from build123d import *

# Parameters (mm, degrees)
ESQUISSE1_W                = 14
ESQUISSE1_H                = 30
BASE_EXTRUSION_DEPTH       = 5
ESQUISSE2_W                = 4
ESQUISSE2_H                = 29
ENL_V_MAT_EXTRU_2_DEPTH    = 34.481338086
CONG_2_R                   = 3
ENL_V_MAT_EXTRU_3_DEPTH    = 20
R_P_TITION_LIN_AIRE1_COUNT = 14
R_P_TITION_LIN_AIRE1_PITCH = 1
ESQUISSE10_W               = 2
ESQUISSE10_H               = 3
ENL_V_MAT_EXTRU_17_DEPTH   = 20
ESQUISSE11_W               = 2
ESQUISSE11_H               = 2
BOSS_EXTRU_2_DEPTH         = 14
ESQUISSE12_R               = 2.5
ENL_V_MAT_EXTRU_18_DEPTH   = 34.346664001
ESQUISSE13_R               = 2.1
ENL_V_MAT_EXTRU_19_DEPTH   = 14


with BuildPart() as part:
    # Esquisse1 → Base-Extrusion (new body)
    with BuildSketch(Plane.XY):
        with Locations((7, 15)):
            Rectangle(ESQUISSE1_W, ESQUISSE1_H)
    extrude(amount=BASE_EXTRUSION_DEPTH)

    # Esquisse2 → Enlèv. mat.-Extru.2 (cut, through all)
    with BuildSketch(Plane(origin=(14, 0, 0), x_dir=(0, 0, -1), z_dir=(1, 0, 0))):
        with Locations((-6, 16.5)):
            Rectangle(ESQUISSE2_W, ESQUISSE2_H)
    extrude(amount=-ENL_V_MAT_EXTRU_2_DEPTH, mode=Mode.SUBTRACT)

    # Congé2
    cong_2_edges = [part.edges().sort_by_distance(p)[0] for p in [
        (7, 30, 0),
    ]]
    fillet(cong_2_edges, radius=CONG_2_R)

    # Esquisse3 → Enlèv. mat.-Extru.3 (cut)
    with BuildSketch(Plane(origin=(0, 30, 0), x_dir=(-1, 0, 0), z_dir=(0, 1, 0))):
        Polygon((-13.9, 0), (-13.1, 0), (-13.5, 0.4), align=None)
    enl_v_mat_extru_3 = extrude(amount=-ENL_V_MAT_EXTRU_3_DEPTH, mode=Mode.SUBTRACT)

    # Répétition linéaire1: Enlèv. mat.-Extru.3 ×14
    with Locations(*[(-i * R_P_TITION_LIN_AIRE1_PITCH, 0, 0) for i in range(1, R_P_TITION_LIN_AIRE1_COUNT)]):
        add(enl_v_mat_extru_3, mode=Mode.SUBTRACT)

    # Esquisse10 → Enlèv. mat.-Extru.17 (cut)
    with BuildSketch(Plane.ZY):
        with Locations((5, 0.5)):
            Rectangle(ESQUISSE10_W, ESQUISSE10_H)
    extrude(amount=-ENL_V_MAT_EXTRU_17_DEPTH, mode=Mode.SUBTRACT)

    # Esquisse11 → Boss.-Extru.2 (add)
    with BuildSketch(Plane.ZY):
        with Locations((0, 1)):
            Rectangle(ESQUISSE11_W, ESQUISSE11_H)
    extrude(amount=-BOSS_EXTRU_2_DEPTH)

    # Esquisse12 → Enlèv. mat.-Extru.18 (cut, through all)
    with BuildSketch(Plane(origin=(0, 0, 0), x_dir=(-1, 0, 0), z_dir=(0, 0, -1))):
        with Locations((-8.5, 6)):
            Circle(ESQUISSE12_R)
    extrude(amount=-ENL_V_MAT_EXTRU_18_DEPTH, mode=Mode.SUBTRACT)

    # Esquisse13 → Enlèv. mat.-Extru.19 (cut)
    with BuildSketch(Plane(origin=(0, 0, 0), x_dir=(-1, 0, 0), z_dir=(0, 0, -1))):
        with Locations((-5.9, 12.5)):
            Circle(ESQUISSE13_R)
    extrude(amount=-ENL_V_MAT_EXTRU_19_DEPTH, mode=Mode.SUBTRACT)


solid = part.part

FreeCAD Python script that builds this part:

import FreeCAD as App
import Part
import Sketcher


def edges_at(feature, points):
    """Names of the edges that pass closest to the given points."""
    edges = feature.Shape.Edges
    near = lambda p: min(range(len(edges)), key=lambda i: edges[i].distToShape(Part.Vertex(*p))[0])
    return sorted({f"Edge{near(p) + 1}" for p in points})


def add_polygon(sketch, points):
    """Adds a closed chain of lines whose ends are joined by coincident constraints."""
    first, n = sketch.GeometryCount, len(points)
    for a, b in zip(points, points[1:] + points[:1]):
        sketch.addGeometry(Part.LineSegment(App.Vector(*a, 0), App.Vector(*b, 0)), False)
    for i in range(n):
        sketch.addConstraint(Sketcher.Constraint("Coincident", first + i, 2, first + (i + 1) % n, 1))

doc = App.newDocument("Part")
body = doc.addObject("PartDesign::Body", "Body")

# Sketch on XY plane
sketch1 = body.newObject("Sketcher::SketchObject", "Sketch")
sketch1.AttachmentSupport = (doc.getObject("XY_Plane"), [""])
sketch1.MapMode = "FlatFace"
add_polygon(sketch1, [(0, 30), (0, 0), (14, 0), (14, 30)])  # lines 0-3
sketch1.addConstraint(Sketcher.Constraint("Vertical", 0))
sketch1.addConstraint(Sketcher.Constraint("Horizontal", 1))
sketch1.addConstraint(Sketcher.Constraint("Vertical", 2))
sketch1.addConstraint(Sketcher.Constraint("Horizontal", 3))
sketch1.addConstraint(Sketcher.Constraint("Coincident", 0, 2, -1, 1))
sketch1.addConstraint(Sketcher.Constraint("DistanceX", 1, 1, 1, 2, 14.0))
sketch1.addConstraint(Sketcher.Constraint("DistanceY", 0, 2, 0, 1, 30.0))
pad1 = body.newObject("PartDesign::Pad", "Pad")
pad1.Profile = sketch1
pad1.Length = 5

# Sketch on YZ plane
sketch2 = body.newObject("Sketcher::SketchObject", "Sketch001")
sketch2.AttachmentSupport = (doc.getObject("YZ_Plane"), [""])
sketch2.MapMode = "FlatFace"
sketch2.AttachmentOffset = App.Placement(App.Vector(0, 0, 14), App.Rotation())
add_polygon(sketch2, [(31, 8), (2, 8), (2, 4), (31, 4)])  # lines 0-3
sketch2.addConstraint(Sketcher.Constraint("Horizontal", 0))
sketch2.addConstraint(Sketcher.Constraint("Vertical", 1))
sketch2.addConstraint(Sketcher.Constraint("Horizontal", 2))
sketch2.addConstraint(Sketcher.Constraint("Vertical", 3))
sketch2.addConstraint(Sketcher.Constraint("DistanceX", 0, 2, 0, 1, 29.0))
sketch2.addConstraint(Sketcher.Constraint("DistanceY", 1, 2, 1, 1, 4.0))
sketch2.addConstraint(Sketcher.Constraint("DistanceX", -1, 1, 0, 2, 2.0))
sketch2.addConstraint(Sketcher.Constraint("DistanceY", -1, 1, 0, 2, 8.0))
pocket1 = body.newObject("PartDesign::Pocket", "Pocket")
pocket1.Profile = sketch2
pocket1.Type = "ThroughAll"
doc.recompute()

fillet = body.newObject("PartDesign::Fillet", "Fillet")
fillet.Base = (pocket1, edges_at(pocket1, [(7, 30, 0)]))
fillet.Radius = 3

# Sketch on XZ plane
sketch3 = body.newObject("Sketcher::SketchObject", "Sketch002")
sketch3.AttachmentSupport = (doc.getObject("XZ_Plane"), [""])
sketch3.MapMode = "FlatFace"
sketch3.AttachmentOffset = App.Placement(App.Vector(0, 0, -30), App.Rotation())
add_polygon(sketch3, [(13.9, 0), (13.1, 0), (13.5, 0.4)])  # lines 0-2
sketch3.addConstraint(Sketcher.Constraint("Horizontal", 0))
sketch3.addConstraint(Sketcher.Constraint("PointOnObject", 0, 2, -1))
sketch3.addConstraint(Sketcher.Constraint("Perpendicular", 1, 2))
sketch3.addConstraint(Sketcher.Constraint("Equal", 1, 2))
sketch3.addConstraint(Sketcher.Constraint("DistanceX", 0, 2, 0, 1, 0.8))
sketch3.addConstraint(Sketcher.Constraint("DistanceX", -1, 1, 0, 2, 13.1))
pocket2 = body.newObject("PartDesign::Pocket", "Pocket001")
pocket2.Profile = sketch3
pocket2.Length = 20
pocket2.Reversed = True
doc.recompute()

linearpattern = body.newObject("PartDesign::LinearPattern", "LinearPattern")
linearpattern.Originals = [pocket2]
linearpattern.Direction = (doc.getObject("X_Axis"), [""])
linearpattern.Mode = "offset"
linearpattern.Offset = 1
linearpattern.Occurrences = 14
linearpattern.Reversed = True
body.Tip = linearpattern

# Sketch on YZ plane
sketch4 = body.newObject("Sketcher::SketchObject", "Sketch003")
sketch4.AttachmentSupport = (doc.getObject("YZ_Plane"), [""])
sketch4.MapMode = "FlatFace"
add_polygon(sketch4, [(2, 4), (-1, 4), (-1, 6), (2, 6)])  # lines 0-3
sketch4.addConstraint(Sketcher.Constraint("Horizontal", 0))
sketch4.addConstraint(Sketcher.Constraint("Vertical", 1))
sketch4.addConstraint(Sketcher.Constraint("Horizontal", 2))
sketch4.addConstraint(Sketcher.Constraint("Vertical", 3))
sketch4.addConstraint(Sketcher.Constraint("DistanceX", 0, 2, 0, 1, 3.0))
sketch4.addConstraint(Sketcher.Constraint("DistanceY", 1, 1, 1, 2, 2.0))
sketch4.addConstraint(Sketcher.Constraint("DistanceX", 0, 2, -1, 1, 1.0))
sketch4.addConstraint(Sketcher.Constraint("DistanceY", -1, 1, 0, 2, 4.0))
pocket3 = body.newObject("PartDesign::Pocket", "Pocket002")
pocket3.Profile = sketch4
pocket3.Length = 20
pocket3.Reversed = True

# Sketch on YZ plane
sketch5 = body.newObject("Sketcher::SketchObject", "Sketch004")
sketch5.AttachmentSupport = (doc.getObject("YZ_Plane"), [""])
sketch5.MapMode = "FlatFace"
add_polygon(sketch5, [(2, -1), (0, -1), (0, 1), (2, 1)])  # lines 0-3
sketch5.addConstraint(Sketcher.Constraint("Horizontal", 0))
sketch5.addConstraint(Sketcher.Constraint("Vertical", 1))
sketch5.addConstraint(Sketcher.Constraint("Horizontal", 2))
sketch5.addConstraint(Sketcher.Constraint("Vertical", 3))
sketch5.addConstraint(Sketcher.Constraint("Symmetric", 0, 2, 1, 2, -1, 1))
sketch5.addConstraint(Sketcher.Constraint("Equal", 2, 1))
sketch5.addConstraint(Sketcher.Constraint("DistanceX", 0, 2, 0, 1, 2.0))
pad2 = body.newObject("PartDesign::Pad", "Pad001")
pad2.Profile = sketch5
pad2.Length = 14

# Sketch on XY plane
sketch6 = body.newObject("Sketcher::SketchObject", "Sketch005")
sketch6.AttachmentSupport = (doc.getObject("XY_Plane"), [""])
sketch6.MapMode = "FlatFace"
sketch6.addGeometry(Part.Circle(App.Vector(8.5, 6, 0), App.Vector(0, 0, 1), 2.5), False)
sketch6.addConstraint(Sketcher.Constraint("Diameter", 0, 5.0))
sketch6.addConstraint(Sketcher.Constraint("DistanceY", -1, 1, 0, 3, 6.0))
sketch6.addConstraint(Sketcher.Constraint("DistanceX", -1, 1, 0, 3, 8.5))
pocket4 = body.newObject("PartDesign::Pocket", "Pocket003")
pocket4.Profile = sketch6
pocket4.Type = "ThroughAll"
pocket4.Reversed = True

# Sketch on XY plane
sketch7 = body.newObject("Sketcher::SketchObject", "Sketch006")
sketch7.AttachmentSupport = (doc.getObject("XY_Plane"), [""])
sketch7.MapMode = "FlatFace"
sketch7.addGeometry(Part.Circle(App.Vector(5.9, 12.5, 0), App.Vector(0, 0, 1), 2.1), False)
sketch7.addConstraint(Sketcher.Constraint("Diameter", 0, 4.2))
sketch7.addConstraint(Sketcher.Constraint("DistanceX", -1, 1, 0, 3, 5.9))
sketch7.addConstraint(Sketcher.Constraint("DistanceY", -1, 1, 0, 3, 12.5))
pocket5 = body.newObject("PartDesign::Pocket", "Pocket004")
pocket5.Profile = sketch7
pocket5.Length = 14
pocket5.Reversed = True

doc.recompute()
